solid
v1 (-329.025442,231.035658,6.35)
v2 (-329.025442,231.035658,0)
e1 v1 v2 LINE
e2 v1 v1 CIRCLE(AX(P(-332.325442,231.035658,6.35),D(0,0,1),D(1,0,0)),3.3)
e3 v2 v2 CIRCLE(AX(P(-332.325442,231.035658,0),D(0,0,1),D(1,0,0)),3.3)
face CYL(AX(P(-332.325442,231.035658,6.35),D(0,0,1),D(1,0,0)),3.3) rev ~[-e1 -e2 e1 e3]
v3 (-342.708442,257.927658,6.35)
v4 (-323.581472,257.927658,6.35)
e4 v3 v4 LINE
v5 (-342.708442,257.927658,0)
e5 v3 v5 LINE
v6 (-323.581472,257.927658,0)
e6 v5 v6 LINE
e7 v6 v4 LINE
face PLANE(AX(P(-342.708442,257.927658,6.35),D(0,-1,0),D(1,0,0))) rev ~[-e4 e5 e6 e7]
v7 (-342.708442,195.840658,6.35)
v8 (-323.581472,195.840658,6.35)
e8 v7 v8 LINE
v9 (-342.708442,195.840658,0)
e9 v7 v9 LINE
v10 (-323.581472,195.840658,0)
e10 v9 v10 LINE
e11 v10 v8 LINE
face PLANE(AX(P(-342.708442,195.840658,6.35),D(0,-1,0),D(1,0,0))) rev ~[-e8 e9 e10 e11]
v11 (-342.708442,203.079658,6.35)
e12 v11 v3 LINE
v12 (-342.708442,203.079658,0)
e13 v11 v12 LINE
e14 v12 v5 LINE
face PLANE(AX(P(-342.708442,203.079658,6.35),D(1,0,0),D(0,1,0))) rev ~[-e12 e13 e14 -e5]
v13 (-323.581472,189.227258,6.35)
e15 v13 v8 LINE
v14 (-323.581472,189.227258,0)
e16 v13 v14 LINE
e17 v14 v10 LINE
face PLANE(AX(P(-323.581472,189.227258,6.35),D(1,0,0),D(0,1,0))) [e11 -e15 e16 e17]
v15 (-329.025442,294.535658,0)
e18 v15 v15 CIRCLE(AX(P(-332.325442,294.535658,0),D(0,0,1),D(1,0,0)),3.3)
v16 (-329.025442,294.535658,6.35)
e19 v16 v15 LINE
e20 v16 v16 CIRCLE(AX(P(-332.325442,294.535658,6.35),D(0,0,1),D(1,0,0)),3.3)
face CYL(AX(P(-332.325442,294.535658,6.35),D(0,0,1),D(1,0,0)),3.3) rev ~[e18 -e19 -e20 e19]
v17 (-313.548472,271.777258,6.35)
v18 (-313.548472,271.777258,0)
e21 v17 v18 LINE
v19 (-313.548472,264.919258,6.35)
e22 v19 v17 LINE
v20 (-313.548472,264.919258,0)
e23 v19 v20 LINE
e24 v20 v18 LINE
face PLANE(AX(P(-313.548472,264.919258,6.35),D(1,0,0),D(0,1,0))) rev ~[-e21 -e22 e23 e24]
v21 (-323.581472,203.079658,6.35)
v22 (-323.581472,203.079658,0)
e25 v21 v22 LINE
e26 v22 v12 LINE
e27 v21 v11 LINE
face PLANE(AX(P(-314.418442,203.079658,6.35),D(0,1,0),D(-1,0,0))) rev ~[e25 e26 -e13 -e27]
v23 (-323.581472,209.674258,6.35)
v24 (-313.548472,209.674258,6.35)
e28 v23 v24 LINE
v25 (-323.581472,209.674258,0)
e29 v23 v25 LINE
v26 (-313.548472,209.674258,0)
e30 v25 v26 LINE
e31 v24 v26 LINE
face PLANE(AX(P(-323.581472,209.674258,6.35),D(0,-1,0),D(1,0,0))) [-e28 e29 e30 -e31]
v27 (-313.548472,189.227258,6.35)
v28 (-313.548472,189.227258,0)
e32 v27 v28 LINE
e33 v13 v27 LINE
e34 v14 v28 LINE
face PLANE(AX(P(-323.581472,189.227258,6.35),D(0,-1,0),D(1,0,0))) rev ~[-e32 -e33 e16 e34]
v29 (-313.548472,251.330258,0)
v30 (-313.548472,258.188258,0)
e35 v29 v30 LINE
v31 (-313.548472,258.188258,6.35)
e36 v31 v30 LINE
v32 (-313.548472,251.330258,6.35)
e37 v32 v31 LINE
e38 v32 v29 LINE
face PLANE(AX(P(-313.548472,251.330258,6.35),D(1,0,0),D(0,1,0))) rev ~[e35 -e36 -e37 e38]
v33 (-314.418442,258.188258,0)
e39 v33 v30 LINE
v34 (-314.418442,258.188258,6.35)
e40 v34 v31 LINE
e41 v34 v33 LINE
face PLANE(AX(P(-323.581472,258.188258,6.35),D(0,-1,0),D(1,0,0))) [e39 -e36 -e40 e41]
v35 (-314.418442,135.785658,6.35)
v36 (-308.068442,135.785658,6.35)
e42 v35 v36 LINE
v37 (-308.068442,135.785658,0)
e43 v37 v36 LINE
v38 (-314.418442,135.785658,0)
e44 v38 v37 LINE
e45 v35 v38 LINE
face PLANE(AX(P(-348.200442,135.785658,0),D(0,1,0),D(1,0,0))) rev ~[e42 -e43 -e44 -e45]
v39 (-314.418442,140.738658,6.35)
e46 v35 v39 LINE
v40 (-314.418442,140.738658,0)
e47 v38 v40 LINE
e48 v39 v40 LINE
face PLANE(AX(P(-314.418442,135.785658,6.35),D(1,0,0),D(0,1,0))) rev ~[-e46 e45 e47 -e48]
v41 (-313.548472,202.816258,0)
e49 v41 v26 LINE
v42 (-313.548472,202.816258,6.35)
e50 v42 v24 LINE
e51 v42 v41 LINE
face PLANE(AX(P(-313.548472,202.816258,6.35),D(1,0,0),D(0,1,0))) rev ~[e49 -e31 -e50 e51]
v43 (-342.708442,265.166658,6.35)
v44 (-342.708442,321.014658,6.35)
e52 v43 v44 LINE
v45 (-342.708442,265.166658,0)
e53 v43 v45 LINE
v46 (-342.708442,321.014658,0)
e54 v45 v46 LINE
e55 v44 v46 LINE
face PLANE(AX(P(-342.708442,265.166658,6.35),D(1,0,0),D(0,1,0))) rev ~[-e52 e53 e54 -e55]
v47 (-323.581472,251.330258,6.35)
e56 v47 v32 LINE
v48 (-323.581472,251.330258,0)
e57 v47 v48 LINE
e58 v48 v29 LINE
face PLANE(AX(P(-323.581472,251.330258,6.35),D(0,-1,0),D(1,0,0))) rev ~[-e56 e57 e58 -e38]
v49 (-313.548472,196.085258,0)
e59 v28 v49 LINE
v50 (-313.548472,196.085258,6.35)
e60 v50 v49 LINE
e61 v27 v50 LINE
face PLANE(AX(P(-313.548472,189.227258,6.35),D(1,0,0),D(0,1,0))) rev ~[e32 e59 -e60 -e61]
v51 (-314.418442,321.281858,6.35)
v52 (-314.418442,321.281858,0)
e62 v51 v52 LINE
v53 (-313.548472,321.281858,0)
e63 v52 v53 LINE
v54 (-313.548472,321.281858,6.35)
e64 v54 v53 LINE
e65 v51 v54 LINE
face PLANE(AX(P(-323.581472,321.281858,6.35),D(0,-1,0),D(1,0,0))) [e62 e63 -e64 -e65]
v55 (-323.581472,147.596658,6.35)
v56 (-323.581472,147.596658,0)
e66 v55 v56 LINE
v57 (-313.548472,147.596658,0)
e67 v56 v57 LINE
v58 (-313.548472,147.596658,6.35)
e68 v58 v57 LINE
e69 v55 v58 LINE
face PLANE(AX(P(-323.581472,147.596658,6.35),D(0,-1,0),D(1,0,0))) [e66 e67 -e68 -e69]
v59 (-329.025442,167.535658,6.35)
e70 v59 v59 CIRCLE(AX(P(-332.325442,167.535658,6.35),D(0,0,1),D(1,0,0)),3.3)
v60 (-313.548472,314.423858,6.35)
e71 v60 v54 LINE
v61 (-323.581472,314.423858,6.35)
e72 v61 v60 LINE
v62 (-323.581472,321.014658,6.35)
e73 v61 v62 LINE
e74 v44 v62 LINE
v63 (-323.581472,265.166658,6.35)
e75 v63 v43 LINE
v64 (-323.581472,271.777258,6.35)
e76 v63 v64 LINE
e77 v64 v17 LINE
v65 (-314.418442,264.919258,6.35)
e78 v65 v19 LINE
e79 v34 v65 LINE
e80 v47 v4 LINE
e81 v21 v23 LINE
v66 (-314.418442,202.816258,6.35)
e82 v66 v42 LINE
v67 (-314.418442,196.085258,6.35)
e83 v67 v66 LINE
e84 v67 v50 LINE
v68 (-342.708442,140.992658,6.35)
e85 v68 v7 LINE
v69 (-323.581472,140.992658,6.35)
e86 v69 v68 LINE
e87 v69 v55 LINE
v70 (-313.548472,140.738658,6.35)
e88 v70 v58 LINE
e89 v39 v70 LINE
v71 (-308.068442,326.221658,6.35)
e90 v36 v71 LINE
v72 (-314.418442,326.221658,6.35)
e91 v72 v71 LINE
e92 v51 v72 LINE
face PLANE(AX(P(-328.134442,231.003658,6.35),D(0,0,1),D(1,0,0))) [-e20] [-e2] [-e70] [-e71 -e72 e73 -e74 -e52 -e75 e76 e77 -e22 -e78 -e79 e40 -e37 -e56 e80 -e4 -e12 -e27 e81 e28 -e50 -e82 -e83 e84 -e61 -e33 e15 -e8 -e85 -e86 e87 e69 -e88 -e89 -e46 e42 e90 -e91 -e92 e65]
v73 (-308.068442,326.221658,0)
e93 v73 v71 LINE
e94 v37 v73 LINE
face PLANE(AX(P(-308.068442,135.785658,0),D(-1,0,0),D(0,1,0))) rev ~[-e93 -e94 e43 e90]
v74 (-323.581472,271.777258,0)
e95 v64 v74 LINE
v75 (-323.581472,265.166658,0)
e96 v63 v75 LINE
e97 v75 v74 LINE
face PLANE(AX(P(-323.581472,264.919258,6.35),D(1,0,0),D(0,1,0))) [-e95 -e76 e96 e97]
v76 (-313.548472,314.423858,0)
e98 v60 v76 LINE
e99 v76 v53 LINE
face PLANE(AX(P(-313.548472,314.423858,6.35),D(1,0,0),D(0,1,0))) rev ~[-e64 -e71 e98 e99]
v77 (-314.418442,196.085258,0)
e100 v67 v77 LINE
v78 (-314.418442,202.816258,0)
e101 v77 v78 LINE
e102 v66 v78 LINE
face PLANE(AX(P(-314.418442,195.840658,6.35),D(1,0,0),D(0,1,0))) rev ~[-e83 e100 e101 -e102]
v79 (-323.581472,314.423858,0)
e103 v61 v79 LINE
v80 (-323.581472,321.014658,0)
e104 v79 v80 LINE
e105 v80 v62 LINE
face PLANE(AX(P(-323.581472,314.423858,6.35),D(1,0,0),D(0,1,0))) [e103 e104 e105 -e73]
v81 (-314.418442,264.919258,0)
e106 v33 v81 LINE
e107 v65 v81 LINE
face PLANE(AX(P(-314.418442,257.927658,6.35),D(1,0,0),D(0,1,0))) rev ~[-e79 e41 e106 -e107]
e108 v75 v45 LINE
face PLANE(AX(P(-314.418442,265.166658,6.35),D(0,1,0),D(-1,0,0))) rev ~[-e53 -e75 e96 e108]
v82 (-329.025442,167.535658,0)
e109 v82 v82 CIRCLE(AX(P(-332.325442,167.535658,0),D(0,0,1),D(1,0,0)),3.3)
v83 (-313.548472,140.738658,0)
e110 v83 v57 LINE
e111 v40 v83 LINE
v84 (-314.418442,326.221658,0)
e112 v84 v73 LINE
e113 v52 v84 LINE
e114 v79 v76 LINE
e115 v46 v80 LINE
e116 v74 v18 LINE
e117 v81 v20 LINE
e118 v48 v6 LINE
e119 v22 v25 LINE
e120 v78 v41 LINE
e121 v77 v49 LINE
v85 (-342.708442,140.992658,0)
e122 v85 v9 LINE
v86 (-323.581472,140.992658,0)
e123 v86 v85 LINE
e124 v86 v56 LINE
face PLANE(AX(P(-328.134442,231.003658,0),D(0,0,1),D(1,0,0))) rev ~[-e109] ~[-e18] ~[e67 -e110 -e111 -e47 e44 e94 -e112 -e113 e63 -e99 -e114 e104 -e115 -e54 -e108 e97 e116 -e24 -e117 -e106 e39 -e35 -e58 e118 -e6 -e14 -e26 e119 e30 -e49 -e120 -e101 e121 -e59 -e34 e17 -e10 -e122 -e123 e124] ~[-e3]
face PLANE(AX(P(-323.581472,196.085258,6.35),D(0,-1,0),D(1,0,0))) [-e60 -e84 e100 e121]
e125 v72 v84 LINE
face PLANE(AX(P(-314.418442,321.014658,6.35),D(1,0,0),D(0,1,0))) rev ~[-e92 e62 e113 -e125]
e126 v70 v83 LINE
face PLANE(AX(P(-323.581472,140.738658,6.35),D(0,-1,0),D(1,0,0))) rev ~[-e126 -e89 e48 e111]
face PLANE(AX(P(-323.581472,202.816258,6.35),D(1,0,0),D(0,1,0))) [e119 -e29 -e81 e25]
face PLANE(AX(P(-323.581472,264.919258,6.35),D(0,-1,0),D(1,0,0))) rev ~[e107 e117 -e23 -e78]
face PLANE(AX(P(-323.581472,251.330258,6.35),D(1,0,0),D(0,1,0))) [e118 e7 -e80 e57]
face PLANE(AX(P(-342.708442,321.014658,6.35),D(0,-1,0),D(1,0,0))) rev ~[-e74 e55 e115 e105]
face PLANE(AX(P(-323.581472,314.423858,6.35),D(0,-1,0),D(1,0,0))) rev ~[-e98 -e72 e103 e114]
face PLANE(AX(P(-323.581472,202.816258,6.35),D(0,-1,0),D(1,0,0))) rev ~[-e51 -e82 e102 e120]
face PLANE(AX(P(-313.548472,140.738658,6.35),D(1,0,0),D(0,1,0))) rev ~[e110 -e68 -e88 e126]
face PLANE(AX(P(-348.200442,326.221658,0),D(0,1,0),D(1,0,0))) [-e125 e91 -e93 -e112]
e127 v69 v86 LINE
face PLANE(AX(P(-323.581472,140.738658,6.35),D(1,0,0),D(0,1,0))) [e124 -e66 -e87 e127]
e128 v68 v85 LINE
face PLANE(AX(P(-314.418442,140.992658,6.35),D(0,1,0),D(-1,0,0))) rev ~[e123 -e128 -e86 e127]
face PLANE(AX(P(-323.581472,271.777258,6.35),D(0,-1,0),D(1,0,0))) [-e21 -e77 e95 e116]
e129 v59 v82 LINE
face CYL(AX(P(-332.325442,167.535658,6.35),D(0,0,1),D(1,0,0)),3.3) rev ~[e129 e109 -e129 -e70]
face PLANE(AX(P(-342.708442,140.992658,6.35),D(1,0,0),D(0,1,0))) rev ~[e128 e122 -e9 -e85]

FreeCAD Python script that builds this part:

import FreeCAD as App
import Part
import Sketcher
Q = App.Units.Quantity


def add_polygon(sketch, points):
    """Adds a closed chain of lines whose ends are joined by coincident constraints."""
    first, n = sketch.GeometryCount, len(points)
    for a, b in zip(points, points[1:] + points[:1]):
        sketch.addGeometry(Part.LineSegment(App.Vector(*a, 0), App.Vector(*b, 0)), False)
    for i in range(n):
        sketch.addConstraint(Sketcher.Constraint("Coincident", first + i, 2, first + (i + 1) % n, 1))

doc = App.newDocument("Part")
params = doc.addObject("Spreadsheet::Sheet", "Params")
for row, (alias, value) in enumerate([
    ("sketch1_width", "1.58 in"),
    ("pad1_length", "0.25 in"),
    ("sketch2_width", "1.33 in"),
    ("sketch2_height", "0.285 in"),
    ("sketch2_height2", "0.205 in"),
    ("sketch3_height", "0.27 in"),
    ("sketch3_width", "0.395 in"),
], start=1):
    params.set(f"A{row}", alias)
    params.set(f"B{row}", "=" + value)
    params.setAlias(f"B{row}", alias)

body = doc.addObject("PartDesign::Body", "Body")

sketch1 = doc.addObject("Sketcher::SketchObject", "Sketch")
body.addObject(sketch1)
sketch1.AttachmentSupport = (doc.XY_Plane, [""])
sketch1.MapMode = "FlatFace"
add_polygon(sketch1, [(-348, 326), (-348, 136), (-308, 136), (-308, 326)])
sketch1.addConstraint(Sketcher.Constraint("Vertical", 0))
sketch1.addConstraint(Sketcher.Constraint("Horizontal", 1))
sketch1.addConstraint(Sketcher.Constraint("Vertical", 2))
sketch1.addConstraint(Sketcher.Constraint("Horizontal", 3))
sketch1.addConstraint(Sketcher.Constraint("DistanceX", 1, 1, 1, 2, Q("1.58 in")))
sketch1.addConstraint(Sketcher.Constraint("DistanceY", 0, 2, 0, 1, 190.436))
sketch1.addConstraint(Sketcher.Constraint("DistanceX", 0, 2, -1, 1, 348.200442))
sketch1.addConstraint(Sketcher.Constraint("DistanceY", -1, 1, 0, 2, 135.785658))
sketch1.setExpression("Constraints[8]", "Params.sketch1_width")
pad1 = doc.addObject("PartDesign::Pad", "Pad")
body.addObject(pad1)
pad1.Profile = sketch1
pad1.setExpression("Length", "Params.pad1_length")

sketch2 = doc.addObject("Sketcher::SketchObject", "Sketch001")
body.addObject(sketch2)
sketch2.AttachmentSupport = (doc.XY_Plane, [""])
sketch2.MapMode = "FlatFace"
sketch2.AttachmentOffset = App.Placement(App.Vector(0, 0, 0.25 * 25.4), App.Rotation())
add_polygon(sketch2, [(-314.4, 195.8), (-314.4, 203.1), (-342.7, 203.1), (-342.7, 257.9), (-314.4, 257.9), (-314.4, 265.2), (-342.7, 265.2), (-342.7, 321), (-314.4, 321), (-314.4, 326.2), (-348.2, 326.2), (-348.2, 135.8), (-314.4, 135.8), (-314.4, 141), (-342.7, 141), (-342.7, 195.8)])
sketch2.addGeometry(Part.Circle(App.Vector(-332.3, 294.5, 0), App.Vector(0, 0, 1), 3.3), False)
sketch2.addGeometry(Part.Circle(App.Vector(-332.3, 231, 0), App.Vector(0, 0, 1), 3.3), False)
sketch2.addGeometry(Part.Circle(App.Vector(-332.3, 167.5, 0), App.Vector(0, 0, 1), 3.3), False)
sketch2.addConstraint(Sketcher.Constraint("Vertical", 0))
sketch2.addConstraint(Sketcher.Constraint("Horizontal", 1))
sketch2.addConstraint(Sketcher.Constraint("Vertical", 2))
sketch2.addConstraint(Sketcher.Constraint("Horizontal", 3))
sketch2.addConstraint(Sketcher.Constraint("Vertical", 4))
sketch2.addConstraint(Sketcher.Constraint("Horizontal", 5))
sketch2.addConstraint(Sketcher.Constraint("Vertical", 6))
sketch2.addConstraint(Sketcher.Constraint("Horizontal", 7))
sketch2.addConstraint(Sketcher.Constraint("Vertical", 8))
sketch2.addConstraint(Sketcher.Constraint("Horizontal", 9))
sketch2.addConstraint(Sketcher.Constraint("Vertical", 10))
sketch2.addConstraint(Sketcher.Constraint("Horizontal", 11))
sketch2.addConstraint(Sketcher.Constraint("Vertical", 12))
sketch2.addConstraint(Sketcher.Constraint("Horizontal", 13))
sketch2.addConstraint(Sketcher.Constraint("Vertical", 14))
sketch2.addConstraint(Sketcher.Constraint("Horizontal", 15))
sketch2.addConstraint(Sketcher.Constraint("Equal", 16, 17))
sketch2.addConstraint(Sketcher.Constraint("Equal", 17, 18))
sketch2.addConstraint(Sketcher.Constraint("Vertical", 16, 3, 17, 3))
sketch2.addConstraint(Sketcher.Constraint("Vertical", 17, 3, 18, 3))
sketch2.addConstraint(Sketcher.Constraint("Vertical", 0, 2, 3, 2))
sketch2.addConstraint(Sketcher.Constraint("Vertical", 2, 2, 5, 2))
sketch2.addConstraint(Sketcher.Constraint("Vertical", 4, 2, 7, 2))
sketch2.addConstraint(Sketcher.Constraint("Vertical", 8, 2, 11, 2))
sketch2.addConstraint(Sketcher.Constraint("Vertical", 6, 2, 13, 2))
sketch2.addConstraint(Sketcher.Constraint("Equal", 0, 4))
sketch2.addConstraint(Sketcher.Constraint("Equal", 8, 12))
sketch2.addConstraint(Sketcher.Constraint("Equal", 2, 14))
sketch2.addConstraint(Sketcher.Constraint("DistanceY", 18, 3, 16, 3, Q("5 in")))
sketch2.addConstraint(Sketcher.Constraint("DistanceX", 9, 2, 9, 1, Q("1.33 in")))
sketch2.addConstraint(Sketcher.Constraint("DistanceY", 17, 3, 16, 3, Q("2.5 in")))
sketch2.addConstraint(Sketcher.Constraint("Diameter", 16, 6.6))
sketch2.addConstraint(Sketcher.Constraint("DistanceY", 0, 1, 0, 2, Q("0.285 in")))
sketch2.addConstraint(Sketcher.Constraint("DistanceY", 8, 1, 8, 2, Q("0.205 in")))
sketch2.addConstraint(Sketcher.Constraint("DistanceY", 10, 2, 18, 3, Q("1.25 in")))
sketch2.addConstraint(Sketcher.Constraint("DistanceX", 17, 3, 0, 2, Q("0.705 in")))
sketch2.addConstraint(Sketcher.Constraint("DistanceX", 1, 2, 1, 1, 28.29))
sketch2.addConstraint(Sketcher.Constraint("DistanceY", 2, 1, 2, 2, 54.848))
sketch2.addConstraint(Sketcher.Constraint("DistanceY", 6, 1, 6, 2, 55.848))
sketch2.addConstraint(Sketcher.Constraint("DistanceX", 16, 3, -1, 1, 332.325442))
sketch2.addConstraint(Sketcher.Constraint("DistanceY", -1, 1, 16, 3, 294.535658))
sketch2.setExpression("Constraints[45]", "Params.sketch2_width")
sketch2.setExpression("Constraints[48]", "Params.sketch2_height")
sketch2.setExpression("Constraints[49]", "Params.sketch2_height2")
pocket1 = doc.addObject("PartDesign::Pocket", "Pocket")
body.addObject(pocket1)
pocket1.Profile = sketch2
pocket1.Type = "ThroughAll"

sketch3 = doc.addObject("Sketcher::SketchObject", "Sketch002")
body.addObject(sketch3)
sketch3.AttachmentSupport = (doc.XY_Plane, [""])
sketch3.MapMode = "FlatFace"
sketch3.AttachmentOffset = App.Placement(App.Vector(0, 0, 0.25 * 25.4), App.Rotation())
add_polygon(sketch3, [(-324, 148), (-324, 141), (-314, 141), (-314, 148)])
add_polygon(sketch3, [(-324, 196), (-324, 189), (-314, 189), (-314, 196)])
add_polygon(sketch3, [(-324, 210), (-324, 203), (-314, 203), (-314, 210)])
add_polygon(sketch3, [(-324, 258), (-324, 251), (-314, 251), (-314, 258)])
add_polygon(sketch3, [(-324, 272), (-324, 265), (-314, 265), (-314, 272)])
add_polygon(sketch3, [(-324, 321), (-324, 314), (-314, 314), (-314, 321)])
sketch3.addConstraint(Sketcher.Constraint("Vertical", 0))
sketch3.addConstraint(Sketcher.Constraint("Horizontal", 1))
sketch3.addConstraint(Sketcher.Constraint("Vertical", 2))
sketch3.addConstraint(Sketcher.Constraint("Horizontal", 3))
sketch3.addConstraint(Sketcher.Constraint("Vertical", 4))
sketch3.addConstraint(Sketcher.Constraint("Horizontal", 5))
sketch3.addConstraint(Sketcher.Constraint("Vertical", 6))
sketch3.addConstraint(Sketcher.Constraint("Horizontal", 7))
sketch3.addConstraint(Sketcher.Constraint("Vertical", 8))
sketch3.addConstraint(Sketcher.Constraint("Horizontal", 9))
sketch3.addConstraint(Sketcher.Constraint("Vertical", 10))
sketch3.addConstraint(Sketcher.Constraint("Horizontal", 11))
sketch3.addConstraint(Sketcher.Constraint("Vertical", 12))
sketch3.addConstraint(Sketcher.Constraint("Horizontal", 13))
sketch3.addConstraint(Sketcher.Constraint("Vertical", 14))
sketch3.addConstraint(Sketcher.Constraint("Horizontal", 15))
sketch3.addConstraint(Sketcher.Constraint("Vertical", 16))
sketch3.addConstraint(Sketcher.Constraint("Horizontal", 17))
sketch3.addConstraint(Sketcher.Constraint("Vertical", 18))
sketch3.addConstraint(Sketcher.Constraint("Horizontal", 19))
sketch3.addConstraint(Sketcher.Constraint("Vertical", 20))
sketch3.addConstraint(Sketcher.Constraint("Horizontal", 21))
sketch3.addConstraint(Sketcher.Constraint("Vertical", 22))
sketch3.addConstraint(Sketcher.Constraint("Horizontal", 23))
sketch3.addConstraint(Sketcher.Constraint("Vertical", 3, 2, 4, 2))
sketch3.addConstraint(Sketcher.Constraint("Vertical", 2, 2, 5, 2))
sketch3.addConstraint(Sketcher.Constraint("Vertical", 7, 2, 8, 2))
sketch3.addConstraint(Sketcher.Constraint("Vertical", 6, 2, 9, 2))
sketch3.addConstraint(Sketcher.Constraint("Vertical", 11, 2, 12, 2))
sketch3.addConstraint(Sketcher.Constraint("Vertical", 10, 2, 13, 2))
sketch3.addConstraint(Sketcher.Constraint("Vertical", 15, 2, 16, 2))
sketch3.addConstraint(Sketcher.Constraint("Vertical", 14, 2, 17, 2))
sketch3.addConstraint(Sketcher.Constraint("Vertical", 19, 2, 20, 2))
sketch3.addConstraint(Sketcher.Constraint("Vertical", 18, 2, 21, 2))
sketch3.addConstraint(Sketcher.Constraint("Equal", 2, 4))
sketch3.addConstraint(Sketcher.Constraint("Equal", 6, 8))
sketch3.addConstraint(Sketcher.Constraint("Equal", 10, 12))
sketch3.addConstraint(Sketcher.Constraint("Equal", 14, 16))
sketch3.addConstraint(Sketcher.Constraint("Equal", 18, 20))
sketch3.addConstraint(Sketcher.Constraint("DistanceY", 0, 2, 0, 1, Q("0.27 in")))
sketch3.addConstraint(Sketcher.Constraint("DistanceX", 1, 1, 1, 2, Q("0.395 in")))
sketch3.addConstraint(Sketcher.Constraint("DistanceY", 11, 2, 12, 2, Q("1.64 in")))
sketch3.addConstraint(Sketcher.Constraint("DistanceY", 3, 2, 4, 2, Q("1.639 in")))
sketch3.addConstraint(Sketcher.Constraint("DistanceY", 7, 2, 8, 2, Q("0.265 in")))
sketch3.addConstraint(Sketcher.Constraint("DistanceY", 15, 2, 16, 2, Q("0.265 in")))
sketch3.addConstraint(Sketcher.Constraint("DistanceY", 19, 2, 20, 2, Q("1.679 in")))
sketch3.addConstraint(Sketcher.Constraint("DistanceX", 0, 2, -1, 1, 323.581472))
sketch3.addConstraint(Sketcher.Constraint("DistanceY", -1, 1, 0, 2, 140.738658))
sketch3.setExpression("Constraints[63]", "Params.sketch3_height")
sketch3.setExpression("Constraints[64]", "Params.sketch3_width")
pocket2 = doc.addObject("PartDesign::Pocket", "Pocket001")
body.addObject(pocket2)
pocket2.Profile = sketch3
pocket2.Type = "ThroughAll"

doc.recompute()
